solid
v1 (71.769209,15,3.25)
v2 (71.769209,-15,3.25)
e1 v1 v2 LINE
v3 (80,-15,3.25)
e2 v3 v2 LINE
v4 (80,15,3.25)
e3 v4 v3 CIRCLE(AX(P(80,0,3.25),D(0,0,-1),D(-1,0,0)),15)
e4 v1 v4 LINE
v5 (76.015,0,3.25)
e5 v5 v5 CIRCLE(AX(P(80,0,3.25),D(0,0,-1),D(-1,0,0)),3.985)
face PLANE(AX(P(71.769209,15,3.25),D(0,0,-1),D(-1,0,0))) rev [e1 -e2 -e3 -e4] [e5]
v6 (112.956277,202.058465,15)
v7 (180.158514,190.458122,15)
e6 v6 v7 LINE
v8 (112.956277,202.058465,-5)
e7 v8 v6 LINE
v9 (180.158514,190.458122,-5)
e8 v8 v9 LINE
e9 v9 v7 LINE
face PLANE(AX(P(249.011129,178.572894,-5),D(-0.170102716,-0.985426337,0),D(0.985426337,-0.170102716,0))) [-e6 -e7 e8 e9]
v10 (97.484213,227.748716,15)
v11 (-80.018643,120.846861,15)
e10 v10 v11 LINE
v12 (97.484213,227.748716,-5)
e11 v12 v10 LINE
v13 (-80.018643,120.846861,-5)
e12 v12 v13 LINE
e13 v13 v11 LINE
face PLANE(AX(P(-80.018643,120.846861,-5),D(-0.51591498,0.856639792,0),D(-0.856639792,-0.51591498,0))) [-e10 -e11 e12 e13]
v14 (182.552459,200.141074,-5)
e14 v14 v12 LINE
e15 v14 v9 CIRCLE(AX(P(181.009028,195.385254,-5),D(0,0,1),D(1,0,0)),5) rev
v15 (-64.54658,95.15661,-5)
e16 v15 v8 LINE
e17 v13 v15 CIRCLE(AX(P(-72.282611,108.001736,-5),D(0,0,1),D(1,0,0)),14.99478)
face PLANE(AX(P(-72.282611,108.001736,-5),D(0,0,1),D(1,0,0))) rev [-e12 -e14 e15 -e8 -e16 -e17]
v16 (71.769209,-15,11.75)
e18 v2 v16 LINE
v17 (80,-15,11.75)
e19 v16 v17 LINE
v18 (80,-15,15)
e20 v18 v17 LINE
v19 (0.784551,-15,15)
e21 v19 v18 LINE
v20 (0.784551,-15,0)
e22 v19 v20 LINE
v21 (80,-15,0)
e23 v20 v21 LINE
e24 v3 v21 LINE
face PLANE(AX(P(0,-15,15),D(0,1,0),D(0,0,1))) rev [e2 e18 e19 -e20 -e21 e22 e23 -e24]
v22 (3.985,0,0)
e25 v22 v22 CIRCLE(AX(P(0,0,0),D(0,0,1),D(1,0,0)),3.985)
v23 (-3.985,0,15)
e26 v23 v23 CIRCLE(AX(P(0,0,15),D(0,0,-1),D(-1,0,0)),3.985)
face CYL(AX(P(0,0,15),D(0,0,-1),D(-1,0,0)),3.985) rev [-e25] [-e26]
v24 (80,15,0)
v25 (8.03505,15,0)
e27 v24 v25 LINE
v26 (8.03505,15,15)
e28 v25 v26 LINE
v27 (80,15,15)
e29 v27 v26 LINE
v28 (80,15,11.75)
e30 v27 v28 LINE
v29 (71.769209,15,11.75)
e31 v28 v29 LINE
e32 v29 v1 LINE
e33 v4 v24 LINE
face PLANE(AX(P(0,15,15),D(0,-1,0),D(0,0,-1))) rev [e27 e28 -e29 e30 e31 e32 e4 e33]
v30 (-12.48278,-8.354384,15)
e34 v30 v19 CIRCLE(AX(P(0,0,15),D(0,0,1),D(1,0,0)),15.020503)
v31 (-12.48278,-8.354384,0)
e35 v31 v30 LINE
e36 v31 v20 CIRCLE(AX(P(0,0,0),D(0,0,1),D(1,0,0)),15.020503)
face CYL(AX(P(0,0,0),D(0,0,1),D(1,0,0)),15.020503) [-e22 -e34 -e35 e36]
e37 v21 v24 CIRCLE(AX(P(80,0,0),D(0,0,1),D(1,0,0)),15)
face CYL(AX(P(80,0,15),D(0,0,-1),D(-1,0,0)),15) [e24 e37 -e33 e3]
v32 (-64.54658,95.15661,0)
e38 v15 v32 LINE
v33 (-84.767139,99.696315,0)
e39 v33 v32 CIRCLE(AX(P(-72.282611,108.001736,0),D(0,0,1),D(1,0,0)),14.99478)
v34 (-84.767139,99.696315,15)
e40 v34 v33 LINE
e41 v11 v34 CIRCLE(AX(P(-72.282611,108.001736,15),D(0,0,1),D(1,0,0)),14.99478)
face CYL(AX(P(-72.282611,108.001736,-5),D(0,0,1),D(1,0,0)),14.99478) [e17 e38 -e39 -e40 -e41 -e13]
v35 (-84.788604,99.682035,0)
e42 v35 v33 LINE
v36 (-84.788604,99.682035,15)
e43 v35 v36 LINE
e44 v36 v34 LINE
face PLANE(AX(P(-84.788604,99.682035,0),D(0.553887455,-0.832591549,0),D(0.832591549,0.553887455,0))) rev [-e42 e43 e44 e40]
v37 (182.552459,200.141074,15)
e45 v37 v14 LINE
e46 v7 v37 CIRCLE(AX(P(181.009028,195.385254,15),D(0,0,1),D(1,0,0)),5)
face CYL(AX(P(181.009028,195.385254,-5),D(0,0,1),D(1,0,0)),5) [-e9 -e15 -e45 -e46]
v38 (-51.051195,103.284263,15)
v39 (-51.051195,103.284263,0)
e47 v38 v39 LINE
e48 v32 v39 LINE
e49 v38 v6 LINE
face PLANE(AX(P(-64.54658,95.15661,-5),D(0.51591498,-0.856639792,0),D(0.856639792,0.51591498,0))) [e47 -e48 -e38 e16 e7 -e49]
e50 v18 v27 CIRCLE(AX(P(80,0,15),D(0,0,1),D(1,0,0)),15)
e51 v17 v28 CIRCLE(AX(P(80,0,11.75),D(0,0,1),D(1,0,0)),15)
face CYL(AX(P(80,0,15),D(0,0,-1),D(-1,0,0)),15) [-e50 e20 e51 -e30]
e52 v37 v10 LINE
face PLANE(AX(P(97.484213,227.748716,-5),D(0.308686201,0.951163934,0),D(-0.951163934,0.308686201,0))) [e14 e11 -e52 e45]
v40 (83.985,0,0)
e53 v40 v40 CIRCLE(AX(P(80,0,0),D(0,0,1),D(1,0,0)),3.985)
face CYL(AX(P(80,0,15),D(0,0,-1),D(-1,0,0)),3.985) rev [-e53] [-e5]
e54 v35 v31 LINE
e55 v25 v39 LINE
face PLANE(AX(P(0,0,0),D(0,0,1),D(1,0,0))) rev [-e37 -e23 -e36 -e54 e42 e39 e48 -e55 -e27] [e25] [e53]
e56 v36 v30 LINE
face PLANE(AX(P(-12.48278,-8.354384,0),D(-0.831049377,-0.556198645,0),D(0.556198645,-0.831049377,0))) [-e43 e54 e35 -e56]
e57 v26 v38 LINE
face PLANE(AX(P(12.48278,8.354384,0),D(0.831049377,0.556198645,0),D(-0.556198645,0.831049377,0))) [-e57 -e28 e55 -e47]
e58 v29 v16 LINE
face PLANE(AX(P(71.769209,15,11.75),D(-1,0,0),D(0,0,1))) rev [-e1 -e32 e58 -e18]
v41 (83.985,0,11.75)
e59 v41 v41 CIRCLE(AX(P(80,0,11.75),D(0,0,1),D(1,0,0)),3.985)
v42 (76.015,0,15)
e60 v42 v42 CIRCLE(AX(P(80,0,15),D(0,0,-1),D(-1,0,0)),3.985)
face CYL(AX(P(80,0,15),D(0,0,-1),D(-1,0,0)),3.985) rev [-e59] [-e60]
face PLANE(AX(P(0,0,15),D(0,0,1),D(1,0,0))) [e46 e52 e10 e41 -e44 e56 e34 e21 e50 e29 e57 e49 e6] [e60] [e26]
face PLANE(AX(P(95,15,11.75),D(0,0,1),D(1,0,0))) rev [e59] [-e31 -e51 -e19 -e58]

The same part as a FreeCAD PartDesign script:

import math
import FreeCAD as App
import Part
import Sketcher
from FreeCAD import Vector


def edges_at(feature, points):
    """Names of the edges that pass closest to the given points."""
    edges = feature.Shape.Edges
    near = lambda p: min(range(len(edges)), key=lambda i: edges[i].distToShape(Part.Vertex(*p))[0])
    return sorted({f"Edge{near(p) + 1}" for p in points})


def add_polygon(sketch, points):
    """Adds a closed chain of lines whose ends are joined by coincident constraints."""
    first, n = sketch.GeometryCount, len(points)
    for a, b in zip(points, points[1:] + points[:1]):
        sketch.addGeometry(Part.LineSegment(App.Vector(*a, 0), App.Vector(*b, 0)), False)
    for i in range(n):
        sketch.addConstraint(Sketcher.Constraint("Coincident", first + i, 2, first + (i + 1) % n, 1))

doc = App.newDocument("Part")
params = doc.addObject("Spreadsheet::Sheet", "Params")
for row, (alias, value) in enumerate([
    ("sketch1_radius", "15 mm"),
    ("sketch1_width", "80 mm"),
    ("pad1_length", "15 mm"),
    ("sketch2_height", "8.5 mm"),
    ("sketch3_diameter", "7.97 mm"),
    ("sketch4_length", "130 mm"),
    ("pad2_length", "15 mm"),
    ("sketch5_diameter", "7.97 mm"),
    ("pad3_length", "20 mm"),
    ("fillet_radius", "5 mm"),
], start=1):
    params.set(f"A{row}", alias)
    params.set(f"B{row}", "=" + value)
    params.setAlias(f"B{row}", alias)

body = doc.addObject("PartDesign::Body", "Body")

sketch1 = doc.addObject("Sketcher::SketchObject", "Sketch")
body.addObject(sketch1)
sketch1.AttachmentSupport = (doc.XY_Plane, [""])
sketch1.MapMode = "FlatFace"
sketch1.addGeometry([
    Part.LineSegment(Vector(80, 15, 0), Vector(0, 15, 0)),
    Part.ArcOfCircle(Part.Circle(Vector(0, 0, 0), Vector(0, 0, 1), 15), math.radians(90), math.radians(270)),
    Part.LineSegment(Vector(0, -15, 0), Vector(80, -15, 0)),
    Part.ArcOfCircle(Part.Circle(Vector(80, 0, 0), Vector(0, 0, 1), 15), math.radians(-90), math.radians(90)),
], False)
sketch1.addConstraint([
    Sketcher.Constraint("Tangent", 0, 2, 1, 1),
    Sketcher.Constraint("Tangent", 1, 2, 2, 1),
    Sketcher.Constraint("Tangent", 2, 2, 3, 1),
    Sketcher.Constraint("Tangent", 3, 2, 0, 1),
    Sketcher.Constraint("Horizontal", 0),
    Sketcher.Constraint("Horizontal", 2),
    Sketcher.Constraint("Coincident", 1, 3, -1, 1),
    Sketcher.Constraint("Radius", 1, 15.0),
    Sketcher.Constraint("DistanceX", 0, 2, 0, 1, 80.0),
])
sketch1.setExpression("Constraints[7]", "Params.sketch1_radius")
sketch1.setExpression("Constraints[8]", "Params.sketch1_width")
pad1 = doc.addObject("PartDesign::Pad", "Pad")
body.addObject(pad1)
pad1.Profile = sketch1
pad1.setExpression("Length", "Params.pad1_length")

sketch2 = doc.addObject("Sketcher::SketchObject", "Sketch001")
body.addObject(sketch2)
sketch2.AttachmentSupport = (doc.XZ_Plane, [""])
sketch2.MapMode = "FlatFace"
sketch2.AttachmentOffset = App.Placement(Vector(0, 0, 15), App.Rotation())
add_polygon(sketch2, [(71.769209, 11.75), (71.769209, 3.25), (95, 3.25), (95, 11.75)])
sketch2.addConstraint([
    Sketcher.Constraint("Vertical", 0),
    Sketcher.Constraint("Horizontal", 1),
    Sketcher.Constraint("Vertical", 2),
    Sketcher.Constraint("Horizontal", 3),
    Sketcher.Constraint("DistanceY", 0, 2, 0, 1, 8.5),
    Sketcher.Constraint("DistanceX", -1, 1, 1, 2, 95.0),
    Sketcher.Constraint("DistanceY", -1, 1, 0, 2, 3.25),
    Sketcher.Constraint("DistanceX", 1, 1, 1, 2, 23.230791),
])
sketch2.setExpression("Constraints[8]", "Params.sketch2_height")
pocket1 = doc.addObject("PartDesign::Pocket", "Pocket")
body.addObject(pocket1)
pocket1.Profile = sketch2
pocket1.Type = "ThroughAll"
pocket1.Midplane = True

sketch3 = doc.addObject("Sketcher::SketchObject", "Sketch002")
body.addObject(sketch3)
sketch3.AttachmentSupport = (doc.XY_Plane, [""])
sketch3.MapMode = "FlatFace"
sketch3.addGeometry(Part.Circle(Vector(80, 0, 0), Vector(0, 0, 1), 3.985), False)
sketch3.addConstraint([
    Sketcher.Constraint("PointOnObject", 0, 3, -1),
    Sketcher.Constraint("Diameter", 0, 7.97),
    Sketcher.Constraint("DistanceX", -1, 1, 0, 3, 80.0),
])
sketch3.setExpression("Constraints[1]", "Params.sketch3_diameter")
pocket2 = doc.addObject("PartDesign::Pocket", "Pocket001")
body.addObject(pocket2)
pocket2.Profile = sketch3
pocket2.Type = "ThroughAll"
pocket2.Midplane = True

sketch4 = doc.addObject("Sketcher::SketchObject", "Sketch003")
body.addObject(sketch4)
sketch4.AttachmentSupport = (doc.XY_Plane, [""])
sketch4.MapMode = "FlatFace"
sketch4.AttachmentOffset = App.Placement(Vector(0, 0, 15), App.Rotation())
sketch4.addGeometry([
    Part.LineSegment(Vector(-84.788604, 99.682035, 0), Vector(-12.48278, -8.354384, 0)),
    Part.ArcOfCircle(Part.Circle(Vector(0, 0, 0), Vector(0, 0, 1), 15.020503), math.radians(-146.206686), math.radians(33.793314)),
    Part.LineSegment(Vector(12.48278, 8.354384, 0), Vector(-59.823044, 116.390803, 0)),
    Part.ArcOfCircle(Part.Circle(Vector(-72.305824, 108.036419, 0), Vector(0, 0, 1), 15.020503), math.radians(33.793314), math.radians(213.793314)),
], False)
sketch4.addConstraint([
    Sketcher.Constraint("Tangent", 0, 2, 1, 1),
    Sketcher.Constraint("Tangent", 1, 2, 2, 1),
    Sketcher.Constraint("Tangent", 2, 2, 3, 1),
    Sketcher.Constraint("Tangent", 3, 2, 0, 1),
    Sketcher.Constraint("Coincident", 1, 3, -1, 1),
    Sketcher.Constraint("Equal", 1, 3),
    Sketcher.Constraint("Distance", 0, 130.0),
    Sketcher.Constraint("Radius", 1, 15.020503),
    Sketcher.Constraint("DistanceY", -1, 1, 3, 3, 108.036419),
])
sketch4.setExpression("Constraints[6]", "Params.sketch4_length")
pad2 = doc.addObject("PartDesign::Pad", "Pad001")
body.addObject(pad2)
pad2.Profile = sketch4
pad2.setExpression("Length", "Params.pad2_length")
pad2.Reversed = True

sketch5 = doc.addObject("Sketcher::SketchObject", "Sketch004")
body.addObject(sketch5)
sketch5.AttachmentSupport = (doc.XY_Plane, [""])
sketch5.MapMode = "FlatFace"
sketch5.addGeometry(Part.Circle(Vector(0, 0, 0), Vector(0, 0, 1), 3.985), False)
sketch5.addConstraint([
    Sketcher.Constraint("Coincident", 0, 3, -1, 1),
    Sketcher.Constraint("Diameter", 0, 7.97),
])
sketch5.setExpression("Constraints[1]", "Params.sketch5_diameter")
pocket3 = doc.addObject("PartDesign::Pocket", "Pocket002")
body.addObject(pocket3)
pocket3.Profile = sketch5
pocket3.Type = "ThroughAll"
pocket3.Midplane = True

sketch6 = doc.addObject("Sketcher::SketchObject", "Sketch005")
body.addObject(sketch6)
sketch6.AttachmentSupport = (doc.XY_Plane, [""])
sketch6.MapMode = "FlatFace"
sketch6.AttachmentOffset = App.Placement(Vector(0, 0, 15), App.Rotation())
add_polygon(sketch6, [(-84.788604, 99.682035), (-48.23485, 123.99968), (-59.64356, 141.149004), (-100.506346, 113.964745), (-89.097636, 96.815421)])
sketch6.addConstraint([
    Sketcher.Constraint("Perpendicular", 0, 1),
    Sketcher.Constraint("Perpendicular", 1, 2),
    Sketcher.Constraint("Perpendicular", 2, 3),
    Sketcher.Constraint("Perpendicular", 3, 4),
    Sketcher.Constraint("Distance", 2, 49.07903),
    Sketcher.Constraint("DistanceX", 0, 2, -1, 1, 48.23485),
    Sketcher.Constraint("DistanceY", -1, 1, 0, 2, 123.99968),
    Sketcher.Constraint("DistanceX", 1, 2, -1, 1, 59.64356),
    Sketcher.Constraint("DistanceY", -1, 1, 3, 2, 96.815421),
    Sketcher.Constraint("DistanceX", 3, 2, 4, 2, 4.309032),
])
pocket4 = doc.addObject("PartDesign::Pocket", "Pocket003")
body.addObject(pocket4)
pocket4.Profile = sketch6
pocket4.Type = "ThroughAll"
pocket4.Midplane = True

sketch7 = doc.addObject("Sketcher::SketchObject", "Sketch006")
body.addObject(sketch7)
sketch7.AttachmentSupport = (doc.XY_Plane, [""])
sketch7.MapMode = "FlatFace"
sketch7.AttachmentOffset = App.Placement(Vector(0, 0, 15), App.Rotation())
sketch7.addGeometry([
    Part.LineSegment(Vector(249.011129, 178.572894, 0), Vector(97.484213, 227.748716, 0)),
    Part.LineSegment(Vector(97.484213, 227.748716, 0), Vector(-80.018643, 120.846861, 0)),
    Part.ArcOfCircle(Part.Circle(Vector(-72.282611, 108.001736, 0), Vector(0, 0, 1), 14.99478), math.radians(121.058633), math.radians(301.058633)),
    Part.LineSegment(Vector(-64.54658, 95.15661, 0), Vector(112.956277, 202.058465, 0)),
    Part.LineSegment(Vector(112.956277, 202.058465, 0), Vector(249.011129, 178.572894, 0)),
], False)
sketch7.addConstraint([
    Sketcher.Constraint("Coincident", 0, 2, 1, 1),
    Sketcher.Constraint("Tangent", 1, 2, 2, 1),
    Sketcher.Constraint("Tangent", 2, 2, 3, 1),
    Sketcher.Constraint("Coincident", 3, 2, 4, 1),
    Sketcher.Constraint("Coincident", 4, 2, 0, 1),
    Sketcher.Constraint("Parallel", 1, 3),
    Sketcher.Constraint("Equal", 1, 3),
    Sketcher.Constraint("Radius", 2, 14.99478),
    Sketcher.Constraint("DistanceX", 2, 3, -1, 1, 72.282611),
    Sketcher.Constraint("DistanceY", -1, 1, 1, 2, 120.846861),
    Sketcher.Constraint("DistanceX", 2, 2, -1, 1, 64.54658),
    Sketcher.Constraint("DistanceX", -1, 1, 4, 2, 249.011129),
    Sketcher.Constraint("DistanceY", 2, 3, 0, 2, 119.74698),
    Sketcher.Constraint("DistanceY", 4, 2, 3, 2, 23.485571),
])
pad3 = doc.addObject("PartDesign::Pad", "Pad002")
body.addObject(pad3)
pad3.Profile = sketch7
pad3.setExpression("Length", "Params.pad3_length")
pad3.Reversed = True
doc.recompute()

fillet = doc.addObject("PartDesign::Fillet", "Fillet")
body.addObject(fillet)
fillet.Base = (pad3, edges_at(pad3, [(249.011, 178.573, 5)]))
fillet.setExpression("Radius", "Params.fillet_radius")

doc.recompute()
